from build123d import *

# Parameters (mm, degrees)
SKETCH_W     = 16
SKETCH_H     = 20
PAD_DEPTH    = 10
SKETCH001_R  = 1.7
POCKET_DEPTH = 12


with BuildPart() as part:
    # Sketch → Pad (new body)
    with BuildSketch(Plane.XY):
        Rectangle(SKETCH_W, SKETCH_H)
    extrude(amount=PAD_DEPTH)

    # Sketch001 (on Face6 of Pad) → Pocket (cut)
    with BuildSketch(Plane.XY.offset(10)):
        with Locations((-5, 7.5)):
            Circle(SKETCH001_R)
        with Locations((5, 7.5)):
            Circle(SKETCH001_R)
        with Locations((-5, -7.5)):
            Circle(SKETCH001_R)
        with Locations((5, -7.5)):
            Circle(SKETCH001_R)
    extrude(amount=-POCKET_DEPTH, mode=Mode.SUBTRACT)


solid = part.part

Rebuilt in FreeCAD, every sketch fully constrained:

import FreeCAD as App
import Part
import Sketcher

V = App.Vector
Q = App.Units.Quantity


def add_polygon(sketch, points):
    """Adds a closed chain of lines whose ends are joined by coincident constraints."""
    first, n = sketch.GeometryCount, len(points)
    for a, b in zip(points, points[1:] + points[:1]):
        sketch.addGeometry(Part.LineSegment(App.Vector(*a, 0), App.Vector(*b, 0)), False)
    for i in range(n):
        sketch.addConstraint(Sketcher.Constraint("Coincident", first + i, 2, first + (i + 1) % n, 1))

doc = App.newDocument("Part")
params = doc.addObject("Spreadsheet::Sheet", "Params")
for row, (alias, value) in enumerate([
    ("sketch1_width", "16 mm"),
    ("sketch1_height", "20 mm"),
    ("pad1_length", "10 mm"),
    ("sketch2_diameter", "3.4 mm"),
    ("pocket1_length", "12 mm"),
], start=1):
    params.set(f"A{row}", alias)
    params.set(f"B{row}", "=" + value)
    params.setAlias(f"B{row}", alias)

body = doc.addObject("PartDesign::Body", "Body")

# Sketch on XY plane
sketch1 = body.newObject("Sketcher::SketchObject", "Sketch")
sketch1.AttachmentSupport = (doc.getObject("XY_Plane"), [""])
sketch1.MapMode = "FlatFace"
add_polygon(sketch1, [(-8, 10), (-8, -10), (8, -10), (8, 10)])  # lines 0-3
sketch1.addConstraint([
    Sketcher.Constraint("Vertical", 0),
    Sketcher.Constraint("Horizontal", 1),
    Sketcher.Constraint("Vertical", 2),
    Sketcher.Constraint("Horizontal", 3),
    Sketcher.Constraint("Symmetric", 0, 2, 2, 2, -1, 1),
    Sketcher.Constraint("DistanceX", 1, 1, 1, 2, Q("16 mm")),
    Sketcher.Constraint("DistanceY", 0, 2, 0, 1, Q("20 mm")),
])
sketch1.setExpression("Constraints[9]", "Params.sketch1_width")
sketch1.setExpression("Constraints[10]", "Params.sketch1_height")
pad1 = body.newObject("PartDesign::Pad", "Pad")
pad1.Profile = sketch1
pad1.setExpression("Length", "Params.pad1_length")

# Sketch on XY plane
sketch2 = body.newObject("Sketcher::SketchObject", "Sketch001")
sketch2.AttachmentSupport = (doc.getObject("XY_Plane"), [""])
sketch2.MapMode = "FlatFace"
sketch2.AttachmentOffset = App.Placement(V(0, 0, 10), App.Rotation())
sketch2.addGeometry([
    Part.Circle(V(-5, 7.5, 0), V(0, 0, 1), 1.7),
    Part.Circle(V(5, 7.5, 0), V(0, 0, 1), 1.7),
    Part.Circle(V(-5, -7.5, 0), V(0, 0, 1), 1.7),
    Part.Circle(V(5, -7.5, 0), V(0, 0, 1), 1.7),
], False)
sketch2.addConstraint([
    Sketcher.Constraint("Equal", 0, 1),
    Sketcher.Constraint("Equal", 1, 2),
    Sketcher.Constraint("Equal", 2, 3),
    Sketcher.Constraint("Symmetric", 1, 3, 2, 3, -1, 1),
    Sketcher.Constraint("Symmetric", 0, 3, 3, 3, -1, 1),
    Sketcher.Constraint("Symmetric", 0, 3, 1, 3, -2),
    Sketcher.Constraint("Diameter", 0, Q("3.4 mm")),
    Sketcher.Constraint("DistanceX", 0, 3, -1, 1, Q("5 mm")),
    Sketcher.Constraint("DistanceY", 2, 3, 0, 3, Q("15 mm")),
])
sketch2.setExpression("Constraints[6]", "Params.sketch2_diameter")
pocket1 = body.newObject("PartDesign::Pocket", "Pocket")
pocket1.Profile = sketch2
pocket1.setExpression("Length", "Params.pocket1_length")

doc.recompute()
